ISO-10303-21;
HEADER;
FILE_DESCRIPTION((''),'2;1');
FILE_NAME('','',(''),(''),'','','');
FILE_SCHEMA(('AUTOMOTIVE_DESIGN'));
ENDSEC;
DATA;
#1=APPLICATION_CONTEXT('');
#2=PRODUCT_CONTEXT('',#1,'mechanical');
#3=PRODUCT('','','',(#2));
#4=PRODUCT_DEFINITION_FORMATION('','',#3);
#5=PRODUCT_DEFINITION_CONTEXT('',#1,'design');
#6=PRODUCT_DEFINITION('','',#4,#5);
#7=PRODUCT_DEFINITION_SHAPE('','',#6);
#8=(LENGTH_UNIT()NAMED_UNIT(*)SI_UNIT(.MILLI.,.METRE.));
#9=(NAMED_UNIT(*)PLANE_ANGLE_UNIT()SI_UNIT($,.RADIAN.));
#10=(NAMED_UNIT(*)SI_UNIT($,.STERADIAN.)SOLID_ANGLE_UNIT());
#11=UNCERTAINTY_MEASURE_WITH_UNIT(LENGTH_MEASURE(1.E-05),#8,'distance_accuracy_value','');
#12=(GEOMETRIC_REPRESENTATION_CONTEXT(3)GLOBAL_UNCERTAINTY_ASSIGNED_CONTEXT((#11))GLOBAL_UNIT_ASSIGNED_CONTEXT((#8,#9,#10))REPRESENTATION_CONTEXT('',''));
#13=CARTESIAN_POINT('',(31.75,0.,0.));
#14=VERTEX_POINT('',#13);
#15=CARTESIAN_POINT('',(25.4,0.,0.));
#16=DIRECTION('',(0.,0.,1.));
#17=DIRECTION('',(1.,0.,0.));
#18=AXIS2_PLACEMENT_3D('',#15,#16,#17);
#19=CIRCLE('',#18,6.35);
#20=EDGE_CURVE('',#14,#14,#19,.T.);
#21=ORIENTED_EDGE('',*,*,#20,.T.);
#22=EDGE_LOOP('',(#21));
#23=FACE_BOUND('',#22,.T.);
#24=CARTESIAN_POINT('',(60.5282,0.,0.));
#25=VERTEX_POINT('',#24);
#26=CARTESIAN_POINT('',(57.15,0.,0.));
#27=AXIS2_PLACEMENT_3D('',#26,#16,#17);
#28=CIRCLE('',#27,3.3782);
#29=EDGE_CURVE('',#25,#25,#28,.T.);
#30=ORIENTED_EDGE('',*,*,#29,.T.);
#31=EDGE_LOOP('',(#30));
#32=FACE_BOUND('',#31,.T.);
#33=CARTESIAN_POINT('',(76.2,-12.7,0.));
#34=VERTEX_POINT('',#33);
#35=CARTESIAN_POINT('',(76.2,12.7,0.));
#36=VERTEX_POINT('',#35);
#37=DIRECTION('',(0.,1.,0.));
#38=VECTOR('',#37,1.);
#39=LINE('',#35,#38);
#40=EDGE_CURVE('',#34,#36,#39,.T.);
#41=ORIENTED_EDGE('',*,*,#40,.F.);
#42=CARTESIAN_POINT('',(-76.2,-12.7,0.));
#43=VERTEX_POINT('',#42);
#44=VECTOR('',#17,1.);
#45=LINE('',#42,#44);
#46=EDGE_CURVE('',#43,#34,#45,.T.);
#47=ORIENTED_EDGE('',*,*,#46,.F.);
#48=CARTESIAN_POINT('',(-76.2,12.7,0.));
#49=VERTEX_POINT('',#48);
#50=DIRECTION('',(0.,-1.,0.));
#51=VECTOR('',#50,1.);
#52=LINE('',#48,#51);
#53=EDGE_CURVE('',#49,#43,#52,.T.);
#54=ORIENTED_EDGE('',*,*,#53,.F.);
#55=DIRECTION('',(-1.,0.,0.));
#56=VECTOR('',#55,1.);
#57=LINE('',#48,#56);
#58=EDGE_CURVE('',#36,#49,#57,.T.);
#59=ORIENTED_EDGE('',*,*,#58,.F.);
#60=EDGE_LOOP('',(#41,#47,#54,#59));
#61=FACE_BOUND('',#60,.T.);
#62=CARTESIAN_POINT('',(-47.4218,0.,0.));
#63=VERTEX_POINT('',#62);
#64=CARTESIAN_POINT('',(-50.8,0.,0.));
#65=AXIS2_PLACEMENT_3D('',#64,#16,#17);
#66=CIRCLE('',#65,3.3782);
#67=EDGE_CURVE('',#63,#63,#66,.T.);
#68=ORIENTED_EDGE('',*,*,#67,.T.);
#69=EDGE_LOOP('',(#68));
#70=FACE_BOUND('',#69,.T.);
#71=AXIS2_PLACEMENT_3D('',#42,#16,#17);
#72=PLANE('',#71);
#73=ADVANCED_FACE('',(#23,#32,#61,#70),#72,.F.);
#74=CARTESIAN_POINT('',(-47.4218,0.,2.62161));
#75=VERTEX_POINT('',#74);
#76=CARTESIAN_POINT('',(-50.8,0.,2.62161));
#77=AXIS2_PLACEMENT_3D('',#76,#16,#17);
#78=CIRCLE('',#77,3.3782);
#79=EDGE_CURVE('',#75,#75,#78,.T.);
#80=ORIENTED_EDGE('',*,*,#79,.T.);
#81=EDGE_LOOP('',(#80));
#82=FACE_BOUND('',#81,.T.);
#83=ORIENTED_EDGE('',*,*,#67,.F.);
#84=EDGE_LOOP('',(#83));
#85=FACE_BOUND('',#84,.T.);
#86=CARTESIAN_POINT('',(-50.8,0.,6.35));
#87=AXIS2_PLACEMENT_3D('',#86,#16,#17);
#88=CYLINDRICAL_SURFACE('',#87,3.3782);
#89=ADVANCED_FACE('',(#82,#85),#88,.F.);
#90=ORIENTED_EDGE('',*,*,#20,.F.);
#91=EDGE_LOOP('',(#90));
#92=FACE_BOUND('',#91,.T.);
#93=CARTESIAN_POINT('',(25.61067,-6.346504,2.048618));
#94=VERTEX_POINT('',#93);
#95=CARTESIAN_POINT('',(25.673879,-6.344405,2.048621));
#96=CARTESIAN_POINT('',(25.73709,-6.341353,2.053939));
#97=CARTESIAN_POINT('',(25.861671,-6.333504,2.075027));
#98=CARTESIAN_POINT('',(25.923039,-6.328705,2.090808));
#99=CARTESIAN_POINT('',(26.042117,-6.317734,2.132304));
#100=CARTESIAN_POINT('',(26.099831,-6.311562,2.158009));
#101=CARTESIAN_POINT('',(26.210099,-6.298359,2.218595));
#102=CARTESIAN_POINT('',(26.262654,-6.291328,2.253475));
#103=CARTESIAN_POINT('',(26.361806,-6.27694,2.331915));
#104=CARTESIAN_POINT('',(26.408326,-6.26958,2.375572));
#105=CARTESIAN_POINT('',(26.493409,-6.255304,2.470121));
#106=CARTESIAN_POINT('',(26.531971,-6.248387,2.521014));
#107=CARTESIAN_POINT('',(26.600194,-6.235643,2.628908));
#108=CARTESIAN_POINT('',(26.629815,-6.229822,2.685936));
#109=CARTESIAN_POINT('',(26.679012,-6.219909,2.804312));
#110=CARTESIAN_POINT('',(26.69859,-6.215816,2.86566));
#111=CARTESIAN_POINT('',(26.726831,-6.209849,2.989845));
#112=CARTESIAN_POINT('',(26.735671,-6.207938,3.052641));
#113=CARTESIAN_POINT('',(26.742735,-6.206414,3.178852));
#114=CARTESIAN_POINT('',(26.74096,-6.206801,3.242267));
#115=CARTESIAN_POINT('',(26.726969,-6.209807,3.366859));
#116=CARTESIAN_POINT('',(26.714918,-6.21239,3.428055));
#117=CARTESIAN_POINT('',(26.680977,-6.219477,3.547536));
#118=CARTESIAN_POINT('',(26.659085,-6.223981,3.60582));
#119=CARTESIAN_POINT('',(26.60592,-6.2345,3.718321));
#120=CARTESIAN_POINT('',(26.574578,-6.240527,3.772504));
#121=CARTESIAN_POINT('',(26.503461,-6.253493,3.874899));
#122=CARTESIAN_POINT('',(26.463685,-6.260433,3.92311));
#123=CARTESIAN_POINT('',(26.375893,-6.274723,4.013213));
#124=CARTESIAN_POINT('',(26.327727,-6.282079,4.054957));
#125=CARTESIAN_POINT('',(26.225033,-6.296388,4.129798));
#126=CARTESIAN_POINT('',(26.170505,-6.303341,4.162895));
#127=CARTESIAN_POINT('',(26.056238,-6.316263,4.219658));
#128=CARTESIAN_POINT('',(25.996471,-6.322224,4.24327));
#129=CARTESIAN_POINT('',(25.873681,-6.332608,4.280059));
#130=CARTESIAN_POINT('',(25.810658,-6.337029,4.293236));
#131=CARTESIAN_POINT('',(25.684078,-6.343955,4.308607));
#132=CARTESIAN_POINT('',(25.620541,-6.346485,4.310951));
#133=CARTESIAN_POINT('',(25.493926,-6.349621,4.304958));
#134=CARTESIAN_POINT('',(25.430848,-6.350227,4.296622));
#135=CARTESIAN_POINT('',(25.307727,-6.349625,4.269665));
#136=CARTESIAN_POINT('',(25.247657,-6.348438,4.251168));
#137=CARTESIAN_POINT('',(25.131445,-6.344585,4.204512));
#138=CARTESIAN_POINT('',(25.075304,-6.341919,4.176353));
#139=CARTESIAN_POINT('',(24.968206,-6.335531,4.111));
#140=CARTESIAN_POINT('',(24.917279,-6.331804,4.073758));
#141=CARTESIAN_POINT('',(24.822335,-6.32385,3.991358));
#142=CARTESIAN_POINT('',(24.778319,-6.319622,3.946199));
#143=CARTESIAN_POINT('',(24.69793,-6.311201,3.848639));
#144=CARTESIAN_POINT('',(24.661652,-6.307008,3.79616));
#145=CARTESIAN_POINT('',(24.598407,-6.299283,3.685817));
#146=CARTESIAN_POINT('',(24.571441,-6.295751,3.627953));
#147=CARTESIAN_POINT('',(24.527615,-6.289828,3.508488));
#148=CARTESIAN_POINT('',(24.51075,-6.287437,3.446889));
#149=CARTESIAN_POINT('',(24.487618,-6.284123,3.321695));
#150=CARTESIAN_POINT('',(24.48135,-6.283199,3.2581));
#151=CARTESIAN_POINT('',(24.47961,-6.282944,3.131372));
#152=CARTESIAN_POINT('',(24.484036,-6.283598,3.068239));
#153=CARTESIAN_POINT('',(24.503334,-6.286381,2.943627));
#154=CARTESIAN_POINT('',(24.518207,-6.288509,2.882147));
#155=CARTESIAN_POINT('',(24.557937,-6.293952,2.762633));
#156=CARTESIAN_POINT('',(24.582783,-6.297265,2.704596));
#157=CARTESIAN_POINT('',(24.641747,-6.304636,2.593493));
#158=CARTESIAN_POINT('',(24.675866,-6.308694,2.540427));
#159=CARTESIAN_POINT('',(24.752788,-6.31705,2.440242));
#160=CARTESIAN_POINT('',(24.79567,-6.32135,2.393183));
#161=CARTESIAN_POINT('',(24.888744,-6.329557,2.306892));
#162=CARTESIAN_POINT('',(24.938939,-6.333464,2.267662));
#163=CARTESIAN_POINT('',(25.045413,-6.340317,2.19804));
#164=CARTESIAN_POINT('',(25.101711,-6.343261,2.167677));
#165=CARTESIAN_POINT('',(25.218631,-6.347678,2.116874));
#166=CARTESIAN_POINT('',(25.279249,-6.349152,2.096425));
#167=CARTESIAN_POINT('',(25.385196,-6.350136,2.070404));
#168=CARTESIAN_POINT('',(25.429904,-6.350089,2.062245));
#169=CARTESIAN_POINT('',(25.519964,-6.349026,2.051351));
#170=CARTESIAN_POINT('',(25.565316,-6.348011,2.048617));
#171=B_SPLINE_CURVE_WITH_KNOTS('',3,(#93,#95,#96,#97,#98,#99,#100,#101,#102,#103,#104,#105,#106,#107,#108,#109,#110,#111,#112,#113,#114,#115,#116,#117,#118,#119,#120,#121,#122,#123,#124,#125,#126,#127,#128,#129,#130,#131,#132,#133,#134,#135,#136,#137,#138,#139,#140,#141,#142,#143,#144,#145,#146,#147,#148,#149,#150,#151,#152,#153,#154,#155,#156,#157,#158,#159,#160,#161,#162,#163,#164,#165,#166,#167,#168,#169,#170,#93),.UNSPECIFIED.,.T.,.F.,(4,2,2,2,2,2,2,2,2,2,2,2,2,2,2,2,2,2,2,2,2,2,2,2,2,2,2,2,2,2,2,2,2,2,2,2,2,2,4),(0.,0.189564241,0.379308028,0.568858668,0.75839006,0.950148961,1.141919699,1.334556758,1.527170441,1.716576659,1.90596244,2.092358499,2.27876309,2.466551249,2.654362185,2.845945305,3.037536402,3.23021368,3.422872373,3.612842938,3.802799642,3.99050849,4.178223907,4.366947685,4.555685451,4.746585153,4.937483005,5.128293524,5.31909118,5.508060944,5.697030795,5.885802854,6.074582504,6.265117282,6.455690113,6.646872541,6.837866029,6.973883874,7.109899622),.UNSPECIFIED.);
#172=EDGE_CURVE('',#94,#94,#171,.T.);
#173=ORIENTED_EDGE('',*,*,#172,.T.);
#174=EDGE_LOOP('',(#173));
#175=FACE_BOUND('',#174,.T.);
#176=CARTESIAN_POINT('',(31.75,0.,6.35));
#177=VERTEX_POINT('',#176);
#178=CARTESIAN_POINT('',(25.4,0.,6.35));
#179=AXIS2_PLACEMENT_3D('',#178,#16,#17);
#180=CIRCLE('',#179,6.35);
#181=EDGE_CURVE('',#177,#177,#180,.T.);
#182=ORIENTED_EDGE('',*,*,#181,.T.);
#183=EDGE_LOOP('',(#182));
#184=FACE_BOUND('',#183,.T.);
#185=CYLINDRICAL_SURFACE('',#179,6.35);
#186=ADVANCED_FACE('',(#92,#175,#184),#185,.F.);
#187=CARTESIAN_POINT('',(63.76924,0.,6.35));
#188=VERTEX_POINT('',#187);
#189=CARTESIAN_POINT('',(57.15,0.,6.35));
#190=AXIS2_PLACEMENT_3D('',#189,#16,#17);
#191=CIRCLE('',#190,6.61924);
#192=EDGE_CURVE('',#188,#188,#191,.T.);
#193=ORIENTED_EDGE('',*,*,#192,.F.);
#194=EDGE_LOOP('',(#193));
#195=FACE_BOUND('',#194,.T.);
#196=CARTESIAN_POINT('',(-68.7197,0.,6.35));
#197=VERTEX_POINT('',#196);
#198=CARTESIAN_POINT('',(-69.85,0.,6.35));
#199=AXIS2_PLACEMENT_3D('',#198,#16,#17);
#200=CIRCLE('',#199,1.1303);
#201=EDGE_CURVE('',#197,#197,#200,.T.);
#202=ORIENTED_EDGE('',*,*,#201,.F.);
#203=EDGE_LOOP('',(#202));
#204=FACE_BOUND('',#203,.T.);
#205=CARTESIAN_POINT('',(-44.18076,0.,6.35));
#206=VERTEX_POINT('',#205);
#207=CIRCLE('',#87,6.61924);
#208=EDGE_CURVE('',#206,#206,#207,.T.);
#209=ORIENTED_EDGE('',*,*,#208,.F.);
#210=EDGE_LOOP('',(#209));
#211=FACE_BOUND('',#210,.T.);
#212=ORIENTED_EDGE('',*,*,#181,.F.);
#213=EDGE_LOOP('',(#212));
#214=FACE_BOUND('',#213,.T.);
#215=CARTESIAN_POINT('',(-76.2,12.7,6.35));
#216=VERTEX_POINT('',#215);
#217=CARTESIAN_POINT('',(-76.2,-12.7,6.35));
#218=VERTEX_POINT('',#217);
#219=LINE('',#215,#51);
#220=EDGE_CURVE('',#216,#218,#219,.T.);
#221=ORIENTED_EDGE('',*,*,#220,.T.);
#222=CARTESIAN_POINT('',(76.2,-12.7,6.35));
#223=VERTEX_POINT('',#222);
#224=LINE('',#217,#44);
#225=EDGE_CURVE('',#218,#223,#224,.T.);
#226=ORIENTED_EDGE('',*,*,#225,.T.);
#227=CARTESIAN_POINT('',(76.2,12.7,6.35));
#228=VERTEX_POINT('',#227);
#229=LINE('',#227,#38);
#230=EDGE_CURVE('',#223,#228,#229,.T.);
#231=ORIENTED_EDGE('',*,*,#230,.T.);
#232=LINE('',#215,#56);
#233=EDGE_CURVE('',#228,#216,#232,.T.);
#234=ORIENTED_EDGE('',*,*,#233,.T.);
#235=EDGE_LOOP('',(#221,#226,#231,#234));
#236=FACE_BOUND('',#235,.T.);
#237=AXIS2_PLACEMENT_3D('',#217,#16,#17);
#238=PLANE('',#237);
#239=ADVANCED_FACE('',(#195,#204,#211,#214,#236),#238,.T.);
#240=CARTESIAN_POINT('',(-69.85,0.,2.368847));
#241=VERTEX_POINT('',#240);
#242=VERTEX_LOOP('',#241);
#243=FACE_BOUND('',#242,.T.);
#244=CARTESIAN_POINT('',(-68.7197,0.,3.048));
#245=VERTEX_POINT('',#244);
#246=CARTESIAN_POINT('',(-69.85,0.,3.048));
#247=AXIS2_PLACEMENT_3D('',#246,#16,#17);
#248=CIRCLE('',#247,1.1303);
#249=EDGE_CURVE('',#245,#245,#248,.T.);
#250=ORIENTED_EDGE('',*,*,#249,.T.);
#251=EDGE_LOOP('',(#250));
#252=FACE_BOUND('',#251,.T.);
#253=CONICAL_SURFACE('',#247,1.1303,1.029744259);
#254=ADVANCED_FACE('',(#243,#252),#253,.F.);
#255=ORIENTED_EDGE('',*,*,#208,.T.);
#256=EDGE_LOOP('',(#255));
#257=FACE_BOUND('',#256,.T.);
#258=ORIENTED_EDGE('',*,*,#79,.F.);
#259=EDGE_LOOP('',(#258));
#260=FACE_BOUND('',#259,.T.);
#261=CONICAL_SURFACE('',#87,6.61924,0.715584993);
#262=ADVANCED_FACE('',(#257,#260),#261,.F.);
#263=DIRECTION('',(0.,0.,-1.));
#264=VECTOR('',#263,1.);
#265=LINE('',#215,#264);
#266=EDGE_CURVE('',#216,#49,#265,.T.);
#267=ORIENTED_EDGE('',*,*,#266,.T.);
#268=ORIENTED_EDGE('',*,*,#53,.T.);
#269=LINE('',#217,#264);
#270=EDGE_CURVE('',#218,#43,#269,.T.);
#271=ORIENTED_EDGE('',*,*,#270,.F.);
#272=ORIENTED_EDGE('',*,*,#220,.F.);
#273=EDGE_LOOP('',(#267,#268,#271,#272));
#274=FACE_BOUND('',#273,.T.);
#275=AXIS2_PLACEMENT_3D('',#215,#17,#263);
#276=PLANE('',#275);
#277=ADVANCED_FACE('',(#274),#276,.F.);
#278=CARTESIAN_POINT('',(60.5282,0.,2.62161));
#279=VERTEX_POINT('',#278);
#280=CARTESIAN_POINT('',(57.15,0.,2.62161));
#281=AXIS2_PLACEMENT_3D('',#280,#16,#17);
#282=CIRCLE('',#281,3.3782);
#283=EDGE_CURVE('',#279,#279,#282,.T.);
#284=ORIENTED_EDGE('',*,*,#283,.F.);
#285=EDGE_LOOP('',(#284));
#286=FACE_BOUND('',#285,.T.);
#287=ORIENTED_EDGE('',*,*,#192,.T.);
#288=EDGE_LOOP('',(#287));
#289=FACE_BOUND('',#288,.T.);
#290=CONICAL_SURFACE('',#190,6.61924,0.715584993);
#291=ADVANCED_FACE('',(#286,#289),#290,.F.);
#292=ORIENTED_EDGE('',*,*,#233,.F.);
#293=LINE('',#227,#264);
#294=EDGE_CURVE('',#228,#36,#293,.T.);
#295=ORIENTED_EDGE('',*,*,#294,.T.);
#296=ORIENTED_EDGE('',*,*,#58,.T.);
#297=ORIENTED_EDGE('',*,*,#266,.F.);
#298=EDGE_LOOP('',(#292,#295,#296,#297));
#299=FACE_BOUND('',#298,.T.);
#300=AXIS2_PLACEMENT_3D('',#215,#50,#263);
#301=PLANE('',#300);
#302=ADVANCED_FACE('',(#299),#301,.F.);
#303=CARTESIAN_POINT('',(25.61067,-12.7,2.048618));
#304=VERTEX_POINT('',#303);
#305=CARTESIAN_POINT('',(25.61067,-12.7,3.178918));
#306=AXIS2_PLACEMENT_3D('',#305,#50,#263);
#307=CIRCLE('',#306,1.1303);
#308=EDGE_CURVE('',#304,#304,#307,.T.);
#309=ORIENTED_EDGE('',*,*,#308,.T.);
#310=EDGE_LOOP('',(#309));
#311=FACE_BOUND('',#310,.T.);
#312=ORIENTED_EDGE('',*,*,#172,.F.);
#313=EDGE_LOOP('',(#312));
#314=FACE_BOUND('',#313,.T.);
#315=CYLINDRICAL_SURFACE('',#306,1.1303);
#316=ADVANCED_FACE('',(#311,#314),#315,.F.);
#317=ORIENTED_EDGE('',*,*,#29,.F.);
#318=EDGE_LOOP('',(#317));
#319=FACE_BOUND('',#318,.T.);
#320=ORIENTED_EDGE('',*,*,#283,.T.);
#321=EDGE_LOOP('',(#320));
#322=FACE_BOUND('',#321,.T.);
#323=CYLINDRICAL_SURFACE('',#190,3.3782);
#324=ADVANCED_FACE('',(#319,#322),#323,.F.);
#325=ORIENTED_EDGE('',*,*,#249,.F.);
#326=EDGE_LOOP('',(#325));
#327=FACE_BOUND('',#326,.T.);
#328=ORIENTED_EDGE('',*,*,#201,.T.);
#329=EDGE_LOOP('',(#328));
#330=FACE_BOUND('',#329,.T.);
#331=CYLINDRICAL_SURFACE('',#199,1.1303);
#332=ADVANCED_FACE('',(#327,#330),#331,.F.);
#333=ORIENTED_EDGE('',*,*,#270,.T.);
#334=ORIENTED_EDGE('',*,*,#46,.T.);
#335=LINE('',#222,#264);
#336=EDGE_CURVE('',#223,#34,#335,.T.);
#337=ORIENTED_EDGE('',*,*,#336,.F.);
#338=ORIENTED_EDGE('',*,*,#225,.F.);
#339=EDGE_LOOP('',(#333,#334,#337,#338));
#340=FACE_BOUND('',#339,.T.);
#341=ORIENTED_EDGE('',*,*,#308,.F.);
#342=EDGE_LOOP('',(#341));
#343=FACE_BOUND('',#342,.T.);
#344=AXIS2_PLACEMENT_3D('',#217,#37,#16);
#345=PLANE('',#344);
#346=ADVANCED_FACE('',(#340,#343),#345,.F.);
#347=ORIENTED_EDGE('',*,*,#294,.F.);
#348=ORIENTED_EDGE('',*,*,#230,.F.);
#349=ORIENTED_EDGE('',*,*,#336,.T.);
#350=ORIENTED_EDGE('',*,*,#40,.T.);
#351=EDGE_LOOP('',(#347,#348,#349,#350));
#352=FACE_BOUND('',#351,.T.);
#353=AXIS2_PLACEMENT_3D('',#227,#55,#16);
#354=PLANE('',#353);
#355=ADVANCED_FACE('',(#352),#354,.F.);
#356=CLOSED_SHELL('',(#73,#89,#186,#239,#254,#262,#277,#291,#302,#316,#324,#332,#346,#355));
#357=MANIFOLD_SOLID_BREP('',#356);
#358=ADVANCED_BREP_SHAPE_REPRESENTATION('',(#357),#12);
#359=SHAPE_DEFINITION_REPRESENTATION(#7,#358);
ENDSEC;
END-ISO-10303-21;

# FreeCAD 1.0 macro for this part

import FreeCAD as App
import Part
import Sketcher
Q = App.Units.Quantity


def add_polygon(sketch, points):
    """Adds a closed chain of lines whose ends are joined by coincident constraints."""
    first, n = sketch.GeometryCount, len(points)
    for a, b in zip(points, points[1:] + points[:1]):
        sketch.addGeometry(Part.LineSegment(App.Vector(*a, 0), App.Vector(*b, 0)), False)
    for i in range(n):
        sketch.addConstraint(Sketcher.Constraint("Coincident", first + i, 2, first + (i + 1) % n, 1))

doc = App.newDocument("Part")
body = doc.addObject("PartDesign::Body", "Body")

# Sketch on XY plane
sketch1 = body.newObject("Sketcher::SketchObject", "Sketch")
sketch1.AttachmentSupport = (doc.getObject("XY_Plane"), [""])
sketch1.MapMode = "FlatFace"
add_polygon(sketch1, [(-76.2, 12.7), (-76.2, -12.7), (76.2, -12.7), (76.2, 12.7)])  # lines 0-3
sketch1.addConstraint([
    Sketcher.Constraint("Vertical", 0),
    Sketcher.Constraint("Horizontal", 1),
    Sketcher.Constraint("Vertical", 2),
    Sketcher.Constraint("Horizontal", 3),
    Sketcher.Constraint("Symmetric", 0, 2, 2, 2, -1, 1),
    Sketcher.Constraint("DistanceX", 1, 1, 1, 2, Q("6 in")),
    Sketcher.Constraint("DistanceY", 0, 2, 0, 1, Q("1 in")),
])
pad1 = body.newObject("PartDesign::Pad", "Pad")
pad1.Profile = sketch1
pad1.Length = Q("0.25 in")

# Sketch on XY plane
sketch2 = body.newObject("Sketcher::SketchObject", "Sketch001")
sketch2.AttachmentSupport = (doc.getObject("XY_Plane"), [""])
sketch2.MapMode = "FlatFace"
sketch2.AttachmentOffset = App.Placement(App.Vector(0, 0, 0.25 * 25.4), App.Rotation())
sketch2.addGeometry(Part.Circle(App.Vector(-69.85, 0, 0), App.Vector(0, 0, 1), 1.1303), False)
sketch2.addConstraint([
    Sketcher.Constraint("PointOnObject", 0, 3, -1),
    Sketcher.Constraint("Diameter", 0, Q("0.089 in")),
    Sketcher.Constraint("DistanceX", 0, 3, -1, 1, Q("2.75 in")),
])
doc.recompute()
hole = body.newObject("PartDesign::Hole", "Hole")
hole.Profile = sketch2
hole.ThreadType = "None"
hole.Diameter = Q("0.089 in")
hole.DepthType = "Dimension"
hole.Depth = Q("0.13 in")
hole.DrillPoint = "Angled"
hole.DrillPointAngle = 118

# Sketch on XY plane
sketch3 = body.newObject("Sketcher::SketchObject", "Sketch002")
sketch3.AttachmentSupport = (doc.getObject("XY_Plane"), [""])
sketch3.MapMode = "FlatFace"
sketch3.AttachmentOffset = App.Placement(App.Vector(0, 0, 0.25 * 25.4), App.Rotation())
sketch3.addGeometry(Part.Circle(App.Vector(25.4, 0, 0), App.Vector(0, 0, 1), 6.35), False)
sketch3.addConstraint([
    Sketcher.Constraint("PointOnObject", 0, 3, -1),
    Sketcher.Constraint("Diameter", 0, Q("0.5 in")),
    Sketcher.Constraint("DistanceX", -1, 1, 0, 3, Q("1 in")),
])
doc.recompute()
hole2 = body.newObject("PartDesign::Hole", "Hole001")
hole2.Profile = sketch3
hole2.ThreadType = "None"
hole2.Diameter = Q("0.5 in")
hole2.DepthType = "ThroughAll"

# Sketch on XZ plane
sketch4 = body.newObject("Sketcher::SketchObject", "Sketch003")
sketch4.AttachmentSupport = (doc.getObject("XZ_Plane"), [""])
sketch4.MapMode = "FlatFace"
sketch4.AttachmentOffset = App.Placement(App.Vector(0, 0, 0.5 * 25.4), App.Rotation())
sketch4.addGeometry(Part.Circle(App.Vector(25.61067, 3.178918, 0), App.Vector(0, 0, 1), 1.1303), False)
sketch4.addConstraint([
    Sketcher.Constraint("Diameter", 0, Q("0.089 in")),
    Sketcher.Constraint("DistanceX", -1, 1, 0, 3, Q("25.61067 mm")),
    Sketcher.Constraint("DistanceY", -1, 1, 0, 3, Q("3.178918 mm")),
])
doc.recompute()
hole3 = body.newObject("PartDesign::Hole", "Hole002")
hole3.Profile = sketch4
hole3.ThreadType = "None"
hole3.Diameter = Q("0.089 in")
hole3.DepthType = "Dimension"
hole3.Depth = Q("0.35 in")
hole3.DrillPoint = "Angled"
hole3.DrillPointAngle = 118

# Sketch on YZ plane
sketch5 = body.newObject("Sketcher::SketchObject", "Sketch004")
sketch5.AttachmentSupport = (doc.getObject("YZ_Plane"), [""])
sketch5.MapMode = "FlatFace"
sketch5.AttachmentOffset = App.Placement(App.Vector(0, 0, -2 * 25.4), App.Rotation())
add_polygon(sketch5, [(0, 0), (0, 6.35), (-6.61924, 6.35), (-3.3782, 2.62161), (-3.3782, 0)])  # lines 0-4
sketch5.addConstraint([
    Sketcher.Constraint("Vertical", 0),
    Sketcher.Constraint("Horizontal", 1),
    Sketcher.Constraint("Vertical", 3),
    Sketcher.Constraint("Horizontal", 4),
    Sketcher.Constraint("Coincident", 4, 2, -1, 1),
    Sketcher.Constraint("Angle", 2, Q("-49 deg")),
    Sketcher.Constraint("DistanceY", 0, 1, 0, 2, Q("0.25 in")),
    Sketcher.Constraint("DistanceX", 4, 1, 4, 2, Q("0.133 in")),
    Sketcher.Constraint("DistanceX", 1, 2, 1, 1, Q("0.2606 in")),
])
groove = body.newObject("PartDesign::Groove", "Groove")
groove.Profile = sketch5
groove.ReferenceAxis = (sketch5, ["V_Axis"])
groove.Angle = 360

# Sketch on YZ plane
sketch6 = body.newObject("Sketcher::SketchObject", "Sketch005")
sketch6.AttachmentSupport = (doc.getObject("YZ_Plane"), [""])
sketch6.MapMode = "FlatFace"
sketch6.AttachmentOffset = App.Placement(App.Vector(0, 0, 2.25 * 25.4), App.Rotation())
add_polygon(sketch6, [(0, 0), (0, 6.35), (-6.61924, 6.35), (-3.3782, 2.62161), (-3.3782, 0)])  # lines 0-4
sketch6.addConstraint([
    Sketcher.Constraint("Vertical", 0),
    Sketcher.Constraint("Horizontal", 1),
    Sketcher.Constraint("Vertical", 3),
    Sketcher.Constraint("Horizontal", 4),
    Sketcher.Constraint("Coincident", 4, 2, -1, 1),
    Sketcher.Constraint("Angle", 2, Q("-49 deg")),
    Sketcher.Constraint("DistanceY", 0, 1, 0, 2, Q("0.25 in")),
    Sketcher.Constraint("DistanceX", 4, 1, 4, 2, Q("0.133 in")),
    Sketcher.Constraint("DistanceX", 1, 2, 1, 1, Q("0.2606 in")),
])
groove2 = body.newObject("PartDesign::Groove", "Groove001")
groove2.Profile = sketch6
groove2.ReferenceAxis = (sketch6, ["V_Axis"])
groove2.Angle = 360

doc.recompute()
